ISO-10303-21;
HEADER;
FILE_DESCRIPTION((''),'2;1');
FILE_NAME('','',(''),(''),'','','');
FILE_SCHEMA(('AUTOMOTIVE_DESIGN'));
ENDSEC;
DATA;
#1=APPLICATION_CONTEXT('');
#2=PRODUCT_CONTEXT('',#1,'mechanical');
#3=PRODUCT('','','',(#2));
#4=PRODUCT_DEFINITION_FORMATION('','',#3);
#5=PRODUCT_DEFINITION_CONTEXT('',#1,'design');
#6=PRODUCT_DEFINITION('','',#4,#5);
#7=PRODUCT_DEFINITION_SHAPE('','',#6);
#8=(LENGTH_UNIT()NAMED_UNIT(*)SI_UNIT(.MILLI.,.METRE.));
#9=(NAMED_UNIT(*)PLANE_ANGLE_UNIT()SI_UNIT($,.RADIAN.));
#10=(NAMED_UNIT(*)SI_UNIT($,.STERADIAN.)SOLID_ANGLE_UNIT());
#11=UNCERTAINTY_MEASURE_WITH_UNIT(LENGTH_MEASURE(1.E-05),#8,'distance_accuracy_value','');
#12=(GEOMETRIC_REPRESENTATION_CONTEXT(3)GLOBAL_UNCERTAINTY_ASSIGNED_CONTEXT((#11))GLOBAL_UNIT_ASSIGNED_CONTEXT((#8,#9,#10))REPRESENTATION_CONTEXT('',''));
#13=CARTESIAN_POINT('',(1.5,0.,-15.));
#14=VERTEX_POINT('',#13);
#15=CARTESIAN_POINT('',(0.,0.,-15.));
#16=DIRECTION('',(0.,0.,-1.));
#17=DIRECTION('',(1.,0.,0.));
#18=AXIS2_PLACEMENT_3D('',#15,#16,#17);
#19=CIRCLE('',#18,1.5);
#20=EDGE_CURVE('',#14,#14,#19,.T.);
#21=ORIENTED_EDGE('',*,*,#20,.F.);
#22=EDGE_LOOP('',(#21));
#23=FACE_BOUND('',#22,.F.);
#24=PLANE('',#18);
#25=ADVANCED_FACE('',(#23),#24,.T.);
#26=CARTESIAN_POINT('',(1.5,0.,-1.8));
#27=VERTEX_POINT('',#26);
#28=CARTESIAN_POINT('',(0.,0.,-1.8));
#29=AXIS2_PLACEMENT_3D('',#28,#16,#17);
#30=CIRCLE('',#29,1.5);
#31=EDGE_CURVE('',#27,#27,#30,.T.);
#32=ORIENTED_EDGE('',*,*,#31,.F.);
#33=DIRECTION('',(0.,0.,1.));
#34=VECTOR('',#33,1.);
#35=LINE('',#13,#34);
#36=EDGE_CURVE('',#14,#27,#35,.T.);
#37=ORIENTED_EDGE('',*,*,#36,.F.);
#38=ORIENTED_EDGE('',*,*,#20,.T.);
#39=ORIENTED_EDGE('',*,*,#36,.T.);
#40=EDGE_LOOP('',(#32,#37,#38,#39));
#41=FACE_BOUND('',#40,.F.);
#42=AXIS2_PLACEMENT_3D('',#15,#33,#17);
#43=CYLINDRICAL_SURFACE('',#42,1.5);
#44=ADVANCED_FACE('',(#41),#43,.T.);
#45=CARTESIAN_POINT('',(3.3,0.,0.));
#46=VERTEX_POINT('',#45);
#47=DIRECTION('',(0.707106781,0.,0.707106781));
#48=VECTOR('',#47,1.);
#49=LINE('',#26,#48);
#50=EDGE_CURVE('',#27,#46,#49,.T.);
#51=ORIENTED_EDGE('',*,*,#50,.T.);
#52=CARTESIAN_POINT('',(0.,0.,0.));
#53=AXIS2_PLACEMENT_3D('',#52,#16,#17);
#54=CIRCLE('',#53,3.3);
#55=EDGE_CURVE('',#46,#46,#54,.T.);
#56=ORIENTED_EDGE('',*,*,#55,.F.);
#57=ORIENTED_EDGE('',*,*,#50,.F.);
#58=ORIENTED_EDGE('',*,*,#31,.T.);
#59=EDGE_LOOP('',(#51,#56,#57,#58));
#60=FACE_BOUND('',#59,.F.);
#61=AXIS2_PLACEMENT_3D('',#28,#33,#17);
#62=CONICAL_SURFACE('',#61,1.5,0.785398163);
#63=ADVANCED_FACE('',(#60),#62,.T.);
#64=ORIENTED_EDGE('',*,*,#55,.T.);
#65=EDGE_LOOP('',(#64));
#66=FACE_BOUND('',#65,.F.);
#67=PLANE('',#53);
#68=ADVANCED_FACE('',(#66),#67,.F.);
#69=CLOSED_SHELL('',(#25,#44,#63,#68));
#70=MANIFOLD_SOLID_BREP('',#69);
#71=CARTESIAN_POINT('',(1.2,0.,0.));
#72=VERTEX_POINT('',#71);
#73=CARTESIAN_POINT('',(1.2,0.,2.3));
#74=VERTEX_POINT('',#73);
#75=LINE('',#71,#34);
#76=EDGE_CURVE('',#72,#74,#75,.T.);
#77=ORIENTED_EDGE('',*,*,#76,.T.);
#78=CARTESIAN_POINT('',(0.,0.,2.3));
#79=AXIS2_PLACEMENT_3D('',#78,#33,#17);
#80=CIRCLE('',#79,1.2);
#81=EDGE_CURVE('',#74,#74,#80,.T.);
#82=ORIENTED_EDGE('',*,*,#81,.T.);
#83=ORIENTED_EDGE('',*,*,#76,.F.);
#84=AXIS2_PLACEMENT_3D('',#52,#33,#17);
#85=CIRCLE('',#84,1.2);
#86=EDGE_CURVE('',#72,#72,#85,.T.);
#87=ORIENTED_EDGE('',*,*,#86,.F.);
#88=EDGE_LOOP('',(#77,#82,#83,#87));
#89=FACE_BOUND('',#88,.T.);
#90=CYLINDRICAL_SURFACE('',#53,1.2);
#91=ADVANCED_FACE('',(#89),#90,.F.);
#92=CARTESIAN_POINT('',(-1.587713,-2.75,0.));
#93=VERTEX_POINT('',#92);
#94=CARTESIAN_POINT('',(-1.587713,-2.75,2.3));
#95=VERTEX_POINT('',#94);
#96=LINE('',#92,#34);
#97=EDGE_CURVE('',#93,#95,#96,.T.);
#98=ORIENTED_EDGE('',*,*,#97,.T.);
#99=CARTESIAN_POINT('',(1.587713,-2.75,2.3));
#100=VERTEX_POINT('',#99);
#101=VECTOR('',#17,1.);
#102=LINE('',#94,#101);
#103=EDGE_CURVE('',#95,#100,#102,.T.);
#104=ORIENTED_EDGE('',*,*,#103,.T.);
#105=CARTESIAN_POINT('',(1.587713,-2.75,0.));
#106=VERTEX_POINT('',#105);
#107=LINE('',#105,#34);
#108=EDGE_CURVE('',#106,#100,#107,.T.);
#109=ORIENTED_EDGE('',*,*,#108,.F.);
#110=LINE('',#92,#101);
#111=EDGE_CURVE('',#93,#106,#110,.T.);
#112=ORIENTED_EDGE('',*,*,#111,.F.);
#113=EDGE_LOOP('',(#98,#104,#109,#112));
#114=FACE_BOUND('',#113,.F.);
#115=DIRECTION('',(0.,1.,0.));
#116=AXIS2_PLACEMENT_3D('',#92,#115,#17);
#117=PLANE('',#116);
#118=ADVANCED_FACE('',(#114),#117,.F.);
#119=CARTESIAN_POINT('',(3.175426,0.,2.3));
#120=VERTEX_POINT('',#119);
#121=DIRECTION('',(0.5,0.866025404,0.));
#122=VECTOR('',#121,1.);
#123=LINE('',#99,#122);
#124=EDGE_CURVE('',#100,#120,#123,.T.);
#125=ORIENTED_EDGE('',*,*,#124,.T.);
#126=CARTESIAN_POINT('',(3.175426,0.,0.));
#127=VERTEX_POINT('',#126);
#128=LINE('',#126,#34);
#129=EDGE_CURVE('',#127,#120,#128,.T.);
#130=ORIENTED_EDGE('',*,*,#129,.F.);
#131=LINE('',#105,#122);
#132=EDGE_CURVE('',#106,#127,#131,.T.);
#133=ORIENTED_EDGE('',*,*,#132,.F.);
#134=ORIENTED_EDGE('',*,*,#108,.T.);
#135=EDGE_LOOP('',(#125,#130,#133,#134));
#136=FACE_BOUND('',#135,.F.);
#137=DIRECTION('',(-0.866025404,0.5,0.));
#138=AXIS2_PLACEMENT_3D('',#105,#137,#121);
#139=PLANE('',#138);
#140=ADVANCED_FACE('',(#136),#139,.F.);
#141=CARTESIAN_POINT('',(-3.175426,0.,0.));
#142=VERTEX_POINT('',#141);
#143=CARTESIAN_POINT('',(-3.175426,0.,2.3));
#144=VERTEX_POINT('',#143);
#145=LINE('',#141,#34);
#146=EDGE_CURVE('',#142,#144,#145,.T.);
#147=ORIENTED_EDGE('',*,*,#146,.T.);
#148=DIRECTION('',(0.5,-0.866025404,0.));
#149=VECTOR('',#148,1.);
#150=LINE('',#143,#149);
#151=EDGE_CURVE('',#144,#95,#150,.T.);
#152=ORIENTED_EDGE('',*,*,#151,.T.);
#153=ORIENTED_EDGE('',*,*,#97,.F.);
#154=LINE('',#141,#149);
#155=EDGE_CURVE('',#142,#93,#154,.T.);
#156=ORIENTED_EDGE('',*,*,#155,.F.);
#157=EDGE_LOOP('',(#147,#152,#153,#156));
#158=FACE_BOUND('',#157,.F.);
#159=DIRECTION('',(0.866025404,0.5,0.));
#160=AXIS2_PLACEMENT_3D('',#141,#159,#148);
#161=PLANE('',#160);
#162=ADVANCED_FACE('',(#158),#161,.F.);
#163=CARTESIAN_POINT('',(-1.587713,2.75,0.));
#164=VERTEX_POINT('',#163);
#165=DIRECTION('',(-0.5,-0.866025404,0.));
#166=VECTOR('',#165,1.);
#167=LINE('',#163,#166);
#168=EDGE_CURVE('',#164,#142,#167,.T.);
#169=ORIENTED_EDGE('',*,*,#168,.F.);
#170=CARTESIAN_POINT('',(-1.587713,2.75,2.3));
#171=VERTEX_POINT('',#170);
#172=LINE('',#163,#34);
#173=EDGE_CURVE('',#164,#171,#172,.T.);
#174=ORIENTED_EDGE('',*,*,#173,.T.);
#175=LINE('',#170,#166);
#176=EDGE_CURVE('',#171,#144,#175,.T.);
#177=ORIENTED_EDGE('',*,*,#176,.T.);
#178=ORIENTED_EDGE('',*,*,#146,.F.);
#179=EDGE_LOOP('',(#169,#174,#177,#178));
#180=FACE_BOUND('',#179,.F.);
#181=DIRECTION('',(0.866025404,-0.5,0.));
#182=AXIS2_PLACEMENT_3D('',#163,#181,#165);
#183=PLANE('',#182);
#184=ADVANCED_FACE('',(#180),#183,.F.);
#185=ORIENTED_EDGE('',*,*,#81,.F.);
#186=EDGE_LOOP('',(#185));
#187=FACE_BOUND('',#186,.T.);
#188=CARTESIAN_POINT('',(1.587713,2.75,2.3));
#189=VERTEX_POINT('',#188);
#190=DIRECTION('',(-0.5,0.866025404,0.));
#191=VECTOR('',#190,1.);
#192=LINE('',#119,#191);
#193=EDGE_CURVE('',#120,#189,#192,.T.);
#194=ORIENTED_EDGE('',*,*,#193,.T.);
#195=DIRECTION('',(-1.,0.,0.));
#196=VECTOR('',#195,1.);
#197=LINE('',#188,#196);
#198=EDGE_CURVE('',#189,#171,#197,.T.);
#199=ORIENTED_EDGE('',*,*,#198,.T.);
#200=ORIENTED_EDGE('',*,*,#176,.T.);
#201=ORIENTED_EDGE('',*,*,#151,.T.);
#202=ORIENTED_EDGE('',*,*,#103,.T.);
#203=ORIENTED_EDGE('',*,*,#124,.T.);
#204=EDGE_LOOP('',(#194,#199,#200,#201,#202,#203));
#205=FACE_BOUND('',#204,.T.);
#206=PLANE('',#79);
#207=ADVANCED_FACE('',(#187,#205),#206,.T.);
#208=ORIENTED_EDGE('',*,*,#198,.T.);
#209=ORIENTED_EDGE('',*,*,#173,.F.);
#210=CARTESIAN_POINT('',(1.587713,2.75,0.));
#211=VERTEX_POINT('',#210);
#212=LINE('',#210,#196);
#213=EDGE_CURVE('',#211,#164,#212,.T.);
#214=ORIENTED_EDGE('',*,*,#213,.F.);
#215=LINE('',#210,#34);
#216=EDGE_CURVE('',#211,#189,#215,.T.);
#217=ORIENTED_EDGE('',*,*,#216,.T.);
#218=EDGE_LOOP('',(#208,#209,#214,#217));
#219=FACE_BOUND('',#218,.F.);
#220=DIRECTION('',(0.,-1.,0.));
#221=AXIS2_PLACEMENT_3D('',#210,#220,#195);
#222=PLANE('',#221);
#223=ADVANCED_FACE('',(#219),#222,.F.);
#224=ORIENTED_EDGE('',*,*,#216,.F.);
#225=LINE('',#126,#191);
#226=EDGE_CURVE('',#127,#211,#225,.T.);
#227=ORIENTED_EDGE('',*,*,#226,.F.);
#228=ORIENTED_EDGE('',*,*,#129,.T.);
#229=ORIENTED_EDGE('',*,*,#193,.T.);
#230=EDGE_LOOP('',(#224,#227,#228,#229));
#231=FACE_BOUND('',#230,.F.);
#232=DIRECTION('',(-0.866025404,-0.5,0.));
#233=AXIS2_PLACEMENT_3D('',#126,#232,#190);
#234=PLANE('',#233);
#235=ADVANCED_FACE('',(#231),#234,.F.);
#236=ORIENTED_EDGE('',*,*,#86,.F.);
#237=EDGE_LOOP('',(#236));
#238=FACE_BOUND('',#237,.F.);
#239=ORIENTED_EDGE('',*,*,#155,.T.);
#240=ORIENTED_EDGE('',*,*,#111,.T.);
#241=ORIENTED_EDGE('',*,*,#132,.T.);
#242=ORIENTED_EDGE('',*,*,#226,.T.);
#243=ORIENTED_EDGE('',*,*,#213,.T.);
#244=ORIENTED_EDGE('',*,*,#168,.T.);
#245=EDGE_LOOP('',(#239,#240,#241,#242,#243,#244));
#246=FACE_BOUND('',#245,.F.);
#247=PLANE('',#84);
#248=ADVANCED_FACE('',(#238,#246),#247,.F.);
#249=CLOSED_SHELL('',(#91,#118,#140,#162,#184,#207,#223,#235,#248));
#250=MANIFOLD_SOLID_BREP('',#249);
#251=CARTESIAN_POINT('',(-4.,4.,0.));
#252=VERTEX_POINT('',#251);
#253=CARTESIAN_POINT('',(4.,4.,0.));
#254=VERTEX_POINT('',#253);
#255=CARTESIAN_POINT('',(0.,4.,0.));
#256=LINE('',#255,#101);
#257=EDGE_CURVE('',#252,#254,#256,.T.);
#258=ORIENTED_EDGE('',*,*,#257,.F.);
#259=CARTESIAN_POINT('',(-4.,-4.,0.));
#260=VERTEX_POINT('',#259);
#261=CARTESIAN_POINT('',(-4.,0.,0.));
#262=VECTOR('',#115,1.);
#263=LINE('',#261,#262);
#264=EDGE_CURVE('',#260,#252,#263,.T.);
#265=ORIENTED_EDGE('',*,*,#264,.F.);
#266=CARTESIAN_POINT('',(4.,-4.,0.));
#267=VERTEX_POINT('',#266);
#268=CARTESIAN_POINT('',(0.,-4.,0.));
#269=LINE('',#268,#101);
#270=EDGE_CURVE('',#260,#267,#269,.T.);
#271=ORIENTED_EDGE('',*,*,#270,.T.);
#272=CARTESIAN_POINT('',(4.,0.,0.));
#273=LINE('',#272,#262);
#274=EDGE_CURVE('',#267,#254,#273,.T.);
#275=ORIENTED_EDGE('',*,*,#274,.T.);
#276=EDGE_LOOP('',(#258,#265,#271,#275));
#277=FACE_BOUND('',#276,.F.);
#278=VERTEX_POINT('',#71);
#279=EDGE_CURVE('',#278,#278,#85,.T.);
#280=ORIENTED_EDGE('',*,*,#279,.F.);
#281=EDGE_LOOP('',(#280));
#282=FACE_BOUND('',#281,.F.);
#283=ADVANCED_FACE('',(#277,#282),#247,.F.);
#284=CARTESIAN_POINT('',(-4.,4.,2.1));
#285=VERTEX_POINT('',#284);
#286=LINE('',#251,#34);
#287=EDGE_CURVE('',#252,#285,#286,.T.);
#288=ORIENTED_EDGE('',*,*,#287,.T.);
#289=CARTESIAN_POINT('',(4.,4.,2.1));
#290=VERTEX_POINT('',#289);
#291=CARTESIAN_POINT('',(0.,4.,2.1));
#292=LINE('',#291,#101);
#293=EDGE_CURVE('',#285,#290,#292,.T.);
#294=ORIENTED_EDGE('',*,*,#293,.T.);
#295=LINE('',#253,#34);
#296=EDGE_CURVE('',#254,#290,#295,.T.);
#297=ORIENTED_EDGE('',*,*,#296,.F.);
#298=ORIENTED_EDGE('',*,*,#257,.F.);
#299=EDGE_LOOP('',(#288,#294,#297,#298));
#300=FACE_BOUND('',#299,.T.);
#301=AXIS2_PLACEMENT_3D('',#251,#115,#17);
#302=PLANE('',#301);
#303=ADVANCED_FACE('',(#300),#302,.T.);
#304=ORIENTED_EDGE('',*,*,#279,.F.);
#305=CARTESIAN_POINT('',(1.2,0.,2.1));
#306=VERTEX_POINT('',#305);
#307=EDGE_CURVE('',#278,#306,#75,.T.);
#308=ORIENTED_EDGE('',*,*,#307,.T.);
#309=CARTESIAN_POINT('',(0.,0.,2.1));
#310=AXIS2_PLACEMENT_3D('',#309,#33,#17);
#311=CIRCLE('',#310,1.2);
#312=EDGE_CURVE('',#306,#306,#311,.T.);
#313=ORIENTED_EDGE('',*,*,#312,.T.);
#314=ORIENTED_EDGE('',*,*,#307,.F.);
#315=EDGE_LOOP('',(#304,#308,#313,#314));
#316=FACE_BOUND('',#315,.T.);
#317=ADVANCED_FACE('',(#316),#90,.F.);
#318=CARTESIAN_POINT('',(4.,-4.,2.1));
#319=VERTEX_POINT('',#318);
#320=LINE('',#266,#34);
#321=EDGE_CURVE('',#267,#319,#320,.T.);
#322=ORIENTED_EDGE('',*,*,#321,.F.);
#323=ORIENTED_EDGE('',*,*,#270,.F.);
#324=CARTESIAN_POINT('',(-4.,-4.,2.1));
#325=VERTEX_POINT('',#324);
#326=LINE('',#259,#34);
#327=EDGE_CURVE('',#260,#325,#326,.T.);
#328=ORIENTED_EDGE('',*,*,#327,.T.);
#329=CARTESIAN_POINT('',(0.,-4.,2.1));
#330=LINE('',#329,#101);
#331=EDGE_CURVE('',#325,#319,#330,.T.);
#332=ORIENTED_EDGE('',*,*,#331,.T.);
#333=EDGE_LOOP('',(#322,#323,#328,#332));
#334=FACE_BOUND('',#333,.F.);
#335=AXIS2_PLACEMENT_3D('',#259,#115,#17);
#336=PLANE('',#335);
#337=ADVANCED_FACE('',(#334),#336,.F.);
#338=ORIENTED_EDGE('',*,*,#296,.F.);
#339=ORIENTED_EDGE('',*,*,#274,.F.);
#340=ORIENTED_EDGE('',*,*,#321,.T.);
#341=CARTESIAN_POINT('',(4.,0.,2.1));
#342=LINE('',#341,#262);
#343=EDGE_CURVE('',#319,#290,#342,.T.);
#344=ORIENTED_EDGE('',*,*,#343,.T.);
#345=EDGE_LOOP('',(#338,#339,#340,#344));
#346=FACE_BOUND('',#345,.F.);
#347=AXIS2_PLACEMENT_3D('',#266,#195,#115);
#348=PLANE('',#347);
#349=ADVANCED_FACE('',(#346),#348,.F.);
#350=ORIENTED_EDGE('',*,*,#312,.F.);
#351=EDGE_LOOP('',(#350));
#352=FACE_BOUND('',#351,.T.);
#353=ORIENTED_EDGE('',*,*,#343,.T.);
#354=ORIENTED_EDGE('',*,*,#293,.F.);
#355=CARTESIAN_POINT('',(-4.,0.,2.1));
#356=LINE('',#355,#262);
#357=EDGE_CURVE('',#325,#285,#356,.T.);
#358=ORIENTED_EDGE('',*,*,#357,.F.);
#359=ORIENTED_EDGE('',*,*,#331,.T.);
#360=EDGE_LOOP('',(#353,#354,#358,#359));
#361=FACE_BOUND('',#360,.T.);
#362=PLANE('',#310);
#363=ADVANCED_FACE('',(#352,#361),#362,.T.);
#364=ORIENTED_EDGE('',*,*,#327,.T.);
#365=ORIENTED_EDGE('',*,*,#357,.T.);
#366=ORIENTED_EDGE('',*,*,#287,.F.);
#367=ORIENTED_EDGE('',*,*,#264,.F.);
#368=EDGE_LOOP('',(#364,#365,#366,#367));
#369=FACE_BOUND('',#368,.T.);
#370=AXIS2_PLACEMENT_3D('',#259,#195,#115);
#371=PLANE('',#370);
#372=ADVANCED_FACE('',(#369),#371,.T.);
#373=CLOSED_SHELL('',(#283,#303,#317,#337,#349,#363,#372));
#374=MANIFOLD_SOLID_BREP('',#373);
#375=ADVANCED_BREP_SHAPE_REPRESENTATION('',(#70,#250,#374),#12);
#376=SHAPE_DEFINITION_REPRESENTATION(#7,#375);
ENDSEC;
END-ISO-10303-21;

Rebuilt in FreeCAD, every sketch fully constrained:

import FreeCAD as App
import Part
import Sketcher

V = App.Vector
Q = App.Units.Quantity

doc = App.newDocument("Part")
body = doc.addObject("PartDesign::Body", "Body")

# Sketch on XY plane
sketch1 = body.newObject("Sketcher::SketchObject", "Sketch")
sketch1.AttachmentSupport = (doc.getObject("XY_Plane"), [""])
sketch1.MapMode = "FlatFace"
sketch1.addGeometry(Part.LineSegment(V(3.175426, 0, 0), V(1.587713, 2.75, 0)), False)
sketch1.addGeometry(Part.LineSegment(V(1.587713, 2.75, 0), V(-1.587713, 2.75, 0)), False)
sketch1.addGeometry(Part.LineSegment(V(-1.587713, 2.75, 0), V(-3.175426, 0, 0)), False)
sketch1.addGeometry(Part.LineSegment(V(-3.175426, 0, 0), V(-1.587713, -2.75, 0)), False)
sketch1.addGeometry(Part.LineSegment(V(-1.587713, -2.75, 0), V(1.587713, -2.75, 0)), False)
sketch1.addGeometry(Part.LineSegment(V(1.587713, -2.75, 0), V(3.175426, 0, 0)), False)
sketch1.addGeometry(Part.Circle(V(0, 0, 0), V(0, 0, 1), 1.2), False)
sketch1.addConstraint(Sketcher.Constraint("Coincident", 0, 2, 1, 1))
sketch1.addConstraint(Sketcher.Constraint("Coincident", 1, 2, 2, 1))
sketch1.addConstraint(Sketcher.Constraint("Coincident", 2, 2, 3, 1))
sketch1.addConstraint(Sketcher.Constraint("Coincident", 3, 2, 4, 1))
sketch1.addConstraint(Sketcher.Constraint("Coincident", 4, 2, 5, 1))
sketch1.addConstraint(Sketcher.Constraint("Coincident", 5, 2, 0, 1))
sketch1.addConstraint(Sketcher.Constraint("Horizontal", 1))
sketch1.addConstraint(Sketcher.Constraint("Horizontal", 4))
sketch1.addConstraint(Sketcher.Constraint("Coincident", 6, 3, -1, 1))
sketch1.addConstraint(Sketcher.Constraint("Symmetric", 0, 2, 3, 2, -1, 1))
sketch1.addConstraint(Sketcher.Constraint("Symmetric", 2, 2, 5, 2, -1, 1))
sketch1.addConstraint(Sketcher.Constraint("PointOnObject", 2, 2, -1))
sketch1.addConstraint(Sketcher.Constraint("Parallel", 2, 5))
sketch1.addConstraint(Sketcher.Constraint("Vertical", 1, 2, 3, 2))
sketch1.addConstraint(Sketcher.Constraint("Diameter", 6, 2.4))
sketch1.addConstraint(Sketcher.Constraint("Angle", 0, Q("120 deg")))
sketch1.addConstraint(Sketcher.Constraint("DistanceY", 3, 2, 1, 2, 5.5))
sketch1.addConstraint(Sketcher.Constraint("DistanceX", 1, 2, 1, 1, 3.175426))
pad1 = body.newObject("PartDesign::Pad", "Pad")
pad1.Profile = sketch1
pad1.Length = 2.3
body2 = doc.addObject("PartDesign::Body", "Body001")

# Sketch on XY plane
sketch2 = body2.newObject("Sketcher::SketchObject", "Sketch001")
sketch2.AttachmentSupport = (doc.getObject("XY_Plane001"), [""])
sketch2.MapMode = "FlatFace"
sketch2.addGeometry(Part.LineSegment(V(-4, 4, 0), V(-4, -4, 0)), False)
sketch2.addGeometry(Part.LineSegment(V(-4, -4, 0), V(4, -4, 0)), False)
sketch2.addGeometry(Part.LineSegment(V(4, -4, 0), V(4, 4, 0)), False)
sketch2.addGeometry(Part.LineSegment(V(4, 4, 0), V(-4, 4, 0)), False)
sketch2.addGeometry(Part.Circle(V(0, 0, 0), V(0, 0, 1), 1.2), False)
sketch2.addConstraint(Sketcher.Constraint("Coincident", 0, 2, 1, 1))
sketch2.addConstraint(Sketcher.Constraint("Coincident", 1, 2, 2, 1))
sketch2.addConstraint(Sketcher.Constraint("Coincident", 2, 2, 3, 1))
sketch2.addConstraint(Sketcher.Constraint("Coincident", 3, 2, 0, 1))
sketch2.addConstraint(Sketcher.Constraint("Vertical", 0))
sketch2.addConstraint(Sketcher.Constraint("Horizontal", 1))
sketch2.addConstraint(Sketcher.Constraint("Vertical", 2))
sketch2.addConstraint(Sketcher.Constraint("Horizontal", 3))
sketch2.addConstraint(Sketcher.Constraint("Coincident", 4, 3, -1, 1))
sketch2.addConstraint(Sketcher.Constraint("Symmetric", 0, 2, 2, 2, -1, 1))
sketch2.addConstraint(Sketcher.Constraint("Equal", 3, 0))
sketch2.addConstraint(Sketcher.Constraint("Diameter", 4, 2.4))
sketch2.addConstraint(Sketcher.Constraint("DistanceX", 1, 1, 1, 2, 8.0))
pad2 = body2.newObject("PartDesign::Pad", "Pad001")
pad2.Profile = sketch2
pad2.Length = 2.1
body3 = doc.addObject("PartDesign::Body", "Body002")

# Sketch on XZ plane
sketch3 = body3.newObject("Sketcher::SketchObject", "Sketch002")
sketch3.AttachmentSupport = (doc.getObject("XZ_Plane002"), [""])
sketch3.MapMode = "FlatFace"
sketch3.addGeometry(Part.LineSegment(V(3.3, 0, 0), V(0, 0, 0)), False)
sketch3.addGeometry(Part.LineSegment(V(0, 0, 0), V(0, -15, 0)), False)
sketch3.addGeometry(Part.LineSegment(V(0, -15, 0), V(1.5, -15, 0)), False)
sketch3.addGeometry(Part.LineSegment(V(1.5, -15, 0), V(1.5, -1.8, 0)), False)
sketch3.addGeometry(Part.LineSegment(V(1.5, -1.8, 0), V(3.3, 0, 0)), False)
sketch3.addConstraint(Sketcher.Constraint("Coincident", 0, 2, 1, 1))
sketch3.addConstraint(Sketcher.Constraint("Coincident", 1, 2, 2, 1))
sketch3.addConstraint(Sketcher.Constraint("Coincident", 2, 2, 3, 1))
sketch3.addConstraint(Sketcher.Constraint("Coincident", 3, 2, 4, 1))
sketch3.addConstraint(Sketcher.Constraint("Coincident", 4, 2, 0, 1))
sketch3.addConstraint(Sketcher.Constraint("Horizontal", 0))
sketch3.addConstraint(Sketcher.Constraint("Vertical", 1))
sketch3.addConstraint(Sketcher.Constraint("Horizontal", 2))
sketch3.addConstraint(Sketcher.Constraint("Vertical", 3))
sketch3.addConstraint(Sketcher.Constraint("Coincident", 0, 2, -1, 1))
sketch3.addConstraint(Sketcher.Constraint("DistanceY", 1, 2, 1, 1, 15.0))
sketch3.addConstraint(Sketcher.Constraint("Angle", 4, Q("45 deg")))
sketch3.addConstraint(Sketcher.Constraint("DistanceX", 0, 2, 0, 1, 3.3))
sketch3.addConstraint(Sketcher.Constraint("DistanceX", 2, 1, 2, 2, 1.5))
revolution = body3.newObject("PartDesign::Revolution", "Revolution")
revolution.Profile = sketch3
revolution.ReferenceAxis = (sketch3, ["V_Axis"])
revolution.Angle = 360

doc.recompute()
